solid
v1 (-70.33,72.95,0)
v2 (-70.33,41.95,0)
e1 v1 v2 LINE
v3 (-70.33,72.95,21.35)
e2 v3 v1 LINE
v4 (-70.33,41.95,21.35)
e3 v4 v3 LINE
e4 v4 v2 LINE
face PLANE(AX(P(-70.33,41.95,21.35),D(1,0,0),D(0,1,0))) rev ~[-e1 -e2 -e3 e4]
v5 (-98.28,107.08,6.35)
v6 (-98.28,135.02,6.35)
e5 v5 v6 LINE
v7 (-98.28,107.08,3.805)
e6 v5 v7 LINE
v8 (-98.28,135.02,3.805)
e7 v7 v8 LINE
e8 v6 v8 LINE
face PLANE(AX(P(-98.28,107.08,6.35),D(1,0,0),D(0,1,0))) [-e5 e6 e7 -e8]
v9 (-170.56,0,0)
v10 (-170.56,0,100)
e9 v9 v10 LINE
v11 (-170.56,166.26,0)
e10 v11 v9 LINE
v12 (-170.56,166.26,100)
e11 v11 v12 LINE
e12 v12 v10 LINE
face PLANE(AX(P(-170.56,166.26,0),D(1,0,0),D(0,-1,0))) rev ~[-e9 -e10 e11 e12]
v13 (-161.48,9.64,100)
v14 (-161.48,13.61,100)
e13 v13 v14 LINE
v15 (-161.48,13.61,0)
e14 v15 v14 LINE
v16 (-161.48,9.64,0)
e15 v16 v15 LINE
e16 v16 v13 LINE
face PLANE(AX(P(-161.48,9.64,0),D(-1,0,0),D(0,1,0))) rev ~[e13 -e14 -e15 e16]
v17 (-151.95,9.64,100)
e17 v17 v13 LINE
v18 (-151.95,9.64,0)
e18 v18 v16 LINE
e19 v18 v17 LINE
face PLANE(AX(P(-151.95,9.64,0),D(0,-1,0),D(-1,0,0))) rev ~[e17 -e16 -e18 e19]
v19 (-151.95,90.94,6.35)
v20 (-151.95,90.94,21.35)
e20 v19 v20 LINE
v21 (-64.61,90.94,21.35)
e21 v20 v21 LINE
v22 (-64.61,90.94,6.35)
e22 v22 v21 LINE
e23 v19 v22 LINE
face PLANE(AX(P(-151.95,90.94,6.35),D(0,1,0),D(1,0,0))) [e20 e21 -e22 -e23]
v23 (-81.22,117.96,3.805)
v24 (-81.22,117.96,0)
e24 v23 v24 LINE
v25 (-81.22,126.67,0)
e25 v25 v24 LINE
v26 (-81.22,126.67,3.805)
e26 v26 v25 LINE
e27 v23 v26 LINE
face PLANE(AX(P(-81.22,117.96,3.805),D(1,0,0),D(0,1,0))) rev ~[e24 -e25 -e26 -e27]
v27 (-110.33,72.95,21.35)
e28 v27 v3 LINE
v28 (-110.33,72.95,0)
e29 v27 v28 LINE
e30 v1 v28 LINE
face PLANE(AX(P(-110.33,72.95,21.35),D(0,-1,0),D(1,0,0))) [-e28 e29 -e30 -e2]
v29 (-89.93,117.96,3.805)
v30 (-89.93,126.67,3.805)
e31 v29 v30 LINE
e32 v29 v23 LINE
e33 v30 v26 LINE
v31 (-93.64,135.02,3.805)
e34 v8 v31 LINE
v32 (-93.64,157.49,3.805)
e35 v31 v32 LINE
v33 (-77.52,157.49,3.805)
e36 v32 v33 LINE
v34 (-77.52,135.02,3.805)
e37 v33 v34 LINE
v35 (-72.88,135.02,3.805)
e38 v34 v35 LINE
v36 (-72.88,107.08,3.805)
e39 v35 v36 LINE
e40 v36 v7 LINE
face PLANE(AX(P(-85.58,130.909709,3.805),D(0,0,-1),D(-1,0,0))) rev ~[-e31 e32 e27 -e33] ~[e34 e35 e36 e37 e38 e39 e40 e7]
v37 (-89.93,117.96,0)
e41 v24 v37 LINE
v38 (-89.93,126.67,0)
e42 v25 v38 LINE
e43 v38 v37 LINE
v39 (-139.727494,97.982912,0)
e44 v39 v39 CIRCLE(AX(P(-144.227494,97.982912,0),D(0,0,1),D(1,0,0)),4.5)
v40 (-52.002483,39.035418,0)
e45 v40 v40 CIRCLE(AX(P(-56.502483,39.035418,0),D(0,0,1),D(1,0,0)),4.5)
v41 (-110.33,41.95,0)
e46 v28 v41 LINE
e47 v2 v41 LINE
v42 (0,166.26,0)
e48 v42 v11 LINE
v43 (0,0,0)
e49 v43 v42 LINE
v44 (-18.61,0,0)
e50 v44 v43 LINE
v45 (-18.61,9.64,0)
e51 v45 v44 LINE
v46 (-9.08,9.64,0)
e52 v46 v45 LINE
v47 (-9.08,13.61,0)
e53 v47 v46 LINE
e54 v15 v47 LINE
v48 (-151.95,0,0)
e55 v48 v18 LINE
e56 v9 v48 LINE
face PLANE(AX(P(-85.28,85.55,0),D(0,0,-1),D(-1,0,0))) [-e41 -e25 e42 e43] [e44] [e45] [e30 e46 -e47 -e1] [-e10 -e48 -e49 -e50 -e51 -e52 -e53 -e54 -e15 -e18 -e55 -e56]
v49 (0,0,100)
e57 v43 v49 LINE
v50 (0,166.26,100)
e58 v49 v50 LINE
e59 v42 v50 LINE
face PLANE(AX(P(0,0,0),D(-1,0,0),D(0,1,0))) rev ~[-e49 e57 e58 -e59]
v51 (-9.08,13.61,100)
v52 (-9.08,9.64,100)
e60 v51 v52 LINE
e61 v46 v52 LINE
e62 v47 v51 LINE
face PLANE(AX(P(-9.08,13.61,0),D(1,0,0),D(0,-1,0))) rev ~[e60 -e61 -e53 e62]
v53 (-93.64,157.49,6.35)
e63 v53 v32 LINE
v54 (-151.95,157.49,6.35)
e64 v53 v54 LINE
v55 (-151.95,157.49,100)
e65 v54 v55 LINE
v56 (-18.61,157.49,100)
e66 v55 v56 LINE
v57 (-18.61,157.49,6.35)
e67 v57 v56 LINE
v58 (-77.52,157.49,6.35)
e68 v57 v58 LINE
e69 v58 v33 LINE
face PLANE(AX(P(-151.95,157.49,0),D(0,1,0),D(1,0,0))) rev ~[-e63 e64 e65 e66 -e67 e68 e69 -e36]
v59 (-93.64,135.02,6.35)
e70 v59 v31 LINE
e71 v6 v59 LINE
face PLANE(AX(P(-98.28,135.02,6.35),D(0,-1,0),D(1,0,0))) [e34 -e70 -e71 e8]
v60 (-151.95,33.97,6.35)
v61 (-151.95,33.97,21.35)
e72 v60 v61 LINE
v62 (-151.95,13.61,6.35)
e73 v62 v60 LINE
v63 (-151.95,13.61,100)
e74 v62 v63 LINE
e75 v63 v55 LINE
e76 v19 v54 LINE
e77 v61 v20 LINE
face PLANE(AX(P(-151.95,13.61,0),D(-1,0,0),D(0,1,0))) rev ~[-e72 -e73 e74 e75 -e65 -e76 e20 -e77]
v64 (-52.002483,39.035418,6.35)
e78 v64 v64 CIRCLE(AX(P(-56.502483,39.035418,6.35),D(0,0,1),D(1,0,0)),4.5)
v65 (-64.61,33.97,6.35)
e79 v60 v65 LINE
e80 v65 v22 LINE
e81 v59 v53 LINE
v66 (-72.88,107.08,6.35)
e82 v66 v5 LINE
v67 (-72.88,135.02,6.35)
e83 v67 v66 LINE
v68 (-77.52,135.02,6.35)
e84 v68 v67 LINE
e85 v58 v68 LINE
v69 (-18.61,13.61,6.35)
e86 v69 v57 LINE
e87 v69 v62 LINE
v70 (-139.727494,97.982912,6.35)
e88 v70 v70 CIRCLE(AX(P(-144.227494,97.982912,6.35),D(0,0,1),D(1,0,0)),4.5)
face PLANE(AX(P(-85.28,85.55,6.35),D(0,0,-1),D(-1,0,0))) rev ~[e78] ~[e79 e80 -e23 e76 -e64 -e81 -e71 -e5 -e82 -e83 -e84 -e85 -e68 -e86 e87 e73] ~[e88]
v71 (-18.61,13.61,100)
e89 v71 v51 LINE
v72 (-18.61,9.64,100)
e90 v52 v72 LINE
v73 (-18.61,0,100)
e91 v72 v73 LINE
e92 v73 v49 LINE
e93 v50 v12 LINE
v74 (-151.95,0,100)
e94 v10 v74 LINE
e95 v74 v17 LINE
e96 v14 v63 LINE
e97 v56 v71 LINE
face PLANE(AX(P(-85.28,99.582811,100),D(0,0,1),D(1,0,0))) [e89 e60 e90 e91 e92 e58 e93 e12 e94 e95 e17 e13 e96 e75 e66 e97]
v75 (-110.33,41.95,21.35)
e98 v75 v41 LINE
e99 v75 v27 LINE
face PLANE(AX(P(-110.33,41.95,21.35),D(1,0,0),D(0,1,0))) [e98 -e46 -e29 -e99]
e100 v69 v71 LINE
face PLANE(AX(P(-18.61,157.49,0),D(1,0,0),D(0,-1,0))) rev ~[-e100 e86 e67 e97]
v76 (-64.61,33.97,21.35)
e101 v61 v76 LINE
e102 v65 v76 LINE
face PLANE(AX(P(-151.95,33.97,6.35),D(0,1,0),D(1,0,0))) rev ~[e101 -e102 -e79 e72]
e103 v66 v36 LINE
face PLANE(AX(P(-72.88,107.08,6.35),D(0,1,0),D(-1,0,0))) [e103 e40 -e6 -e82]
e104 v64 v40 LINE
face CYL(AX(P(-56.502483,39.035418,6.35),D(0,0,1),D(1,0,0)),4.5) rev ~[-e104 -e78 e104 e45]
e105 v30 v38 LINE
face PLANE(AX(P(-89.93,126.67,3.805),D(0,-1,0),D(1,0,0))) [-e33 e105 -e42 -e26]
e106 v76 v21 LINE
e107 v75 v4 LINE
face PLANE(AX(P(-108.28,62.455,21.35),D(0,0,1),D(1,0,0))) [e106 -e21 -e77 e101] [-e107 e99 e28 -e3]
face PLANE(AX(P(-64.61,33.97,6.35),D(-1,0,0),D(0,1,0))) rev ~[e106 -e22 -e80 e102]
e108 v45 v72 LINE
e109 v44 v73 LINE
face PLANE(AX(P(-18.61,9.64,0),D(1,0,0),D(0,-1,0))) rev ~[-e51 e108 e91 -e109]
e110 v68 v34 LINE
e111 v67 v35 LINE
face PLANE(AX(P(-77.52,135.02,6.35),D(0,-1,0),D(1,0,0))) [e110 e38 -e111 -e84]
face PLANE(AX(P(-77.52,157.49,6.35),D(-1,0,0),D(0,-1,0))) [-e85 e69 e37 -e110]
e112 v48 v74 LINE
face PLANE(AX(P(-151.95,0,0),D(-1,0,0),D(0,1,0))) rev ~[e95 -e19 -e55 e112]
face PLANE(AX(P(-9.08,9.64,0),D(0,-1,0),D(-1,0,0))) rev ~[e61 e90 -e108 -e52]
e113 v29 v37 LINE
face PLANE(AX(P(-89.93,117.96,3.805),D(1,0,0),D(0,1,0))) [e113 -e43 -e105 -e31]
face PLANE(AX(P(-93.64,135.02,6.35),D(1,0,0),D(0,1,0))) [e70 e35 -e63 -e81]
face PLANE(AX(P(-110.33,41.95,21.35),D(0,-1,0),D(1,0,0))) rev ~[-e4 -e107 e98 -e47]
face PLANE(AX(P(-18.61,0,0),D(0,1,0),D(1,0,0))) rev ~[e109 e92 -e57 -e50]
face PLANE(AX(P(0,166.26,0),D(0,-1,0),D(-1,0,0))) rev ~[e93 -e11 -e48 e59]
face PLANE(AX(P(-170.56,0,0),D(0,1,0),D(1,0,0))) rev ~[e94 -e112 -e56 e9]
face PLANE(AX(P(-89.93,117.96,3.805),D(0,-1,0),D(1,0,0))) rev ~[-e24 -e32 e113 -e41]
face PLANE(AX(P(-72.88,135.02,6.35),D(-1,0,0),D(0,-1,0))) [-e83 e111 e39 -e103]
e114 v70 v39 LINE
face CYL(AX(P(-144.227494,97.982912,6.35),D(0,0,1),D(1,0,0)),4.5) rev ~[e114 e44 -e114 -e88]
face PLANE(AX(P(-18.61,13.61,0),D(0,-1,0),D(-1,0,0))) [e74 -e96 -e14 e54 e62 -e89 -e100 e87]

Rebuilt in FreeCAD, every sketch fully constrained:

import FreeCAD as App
import Part
import Sketcher
from FreeCAD import Vector

doc = App.newDocument("Part")
body = doc.addObject("PartDesign::Body", "Body")

# Sketch on XY plane
sketch1 = doc.addObject("Sketcher::SketchObject", "Sketch")
body.addObject(sketch1)
sketch1.AttachmentSupport = (doc.XY_Plane, [""])
sketch1.MapMode = "FlatFace"
sketch1.addGeometry(Part.LineSegment(Vector(0, 0, 0), Vector(0, 166.3, 0)), False)
sketch1.addGeometry(Part.LineSegment(Vector(0, 166.3, 0), Vector(-170.6, 166.3, 0)), False)
sketch1.addGeometry(Part.LineSegment(Vector(-170.6, 166.3, 0), Vector(-170.6, 0, 0)), False)
sketch1.addGeometry(Part.LineSegment(Vector(-170.6, 0, 0), Vector(-151.9, 0, 0)), False)
sketch1.addGeometry(Part.LineSegment(Vector(-151.9, 0, 0), Vector(-151.9, 9.6, 0)), False)
sketch1.addGeometry(Part.LineSegment(Vector(-151.9, 9.6, 0), Vector(-161.5, 9.6, 0)), False)
sketch1.addGeometry(Part.LineSegment(Vector(-161.5, 9.6, 0), Vector(-161.5, 13.6, 0)), False)
sketch1.addGeometry(Part.LineSegment(Vector(-161.5, 13.6, 0), Vector(-151.9, 13.6, 0)), False)
sketch1.addGeometry(Part.LineSegment(Vector(-151.9, 13.6, 0), Vector(-151.9, 157.5, 0)), False)
sketch1.addGeometry(Part.LineSegment(Vector(-151.9, 157.5, 0), Vector(-18.6, 157.5, 0)), False)
sketch1.addGeometry(Part.LineSegment(Vector(-18.6, 157.5, 0), Vector(-18.6, 13.6, 0)), False)
sketch1.addGeometry(Part.LineSegment(Vector(-18.6, 13.6, 0), Vector(-9.1, 13.6, 0)), False)
sketch1.addGeometry(Part.LineSegment(Vector(-9.1, 13.6, 0), Vector(-9.1, 9.6, 0)), False)
sketch1.addGeometry(Part.LineSegment(Vector(-9.1, 9.6, 0), Vector(-18.6, 9.6, 0)), False)
sketch1.addGeometry(Part.LineSegment(Vector(-18.6, 9.6, 0), Vector(-18.6, 0, 0)), False)
sketch1.addGeometry(Part.LineSegment(Vector(-18.6, 0, 0), Vector(0, 0, 0)), False)
sketch1.addConstraint(Sketcher.Constraint("Coincident", 0, 2, 1, 1))
sketch1.addConstraint(Sketcher.Constraint("Coincident", 1, 2, 2, 1))
sketch1.addConstraint(Sketcher.Constraint("Coincident", 2, 2, 3, 1))
sketch1.addConstraint(Sketcher.Constraint("Coincident", 3, 2, 4, 1))
sketch1.addConstraint(Sketcher.Constraint("Coincident", 4, 2, 5, 1))
sketch1.addConstraint(Sketcher.Constraint("Coincident", 5, 2, 6, 1))
sketch1.addConstraint(Sketcher.Constraint("Coincident", 6, 2, 7, 1))
sketch1.addConstraint(Sketcher.Constraint("Coincident", 7, 2, 8, 1))
sketch1.addConstraint(Sketcher.Constraint("Coincident", 8, 2, 9, 1))
sketch1.addConstraint(Sketcher.Constraint("Coincident", 9, 2, 10, 1))
sketch1.addConstraint(Sketcher.Constraint("Coincident", 10, 2, 11, 1))
sketch1.addConstraint(Sketcher.Constraint("Coincident", 11, 2, 12, 1))
sketch1.addConstraint(Sketcher.Constraint("Coincident", 12, 2, 13, 1))
sketch1.addConstraint(Sketcher.Constraint("Coincident", 13, 2, 14, 1))
sketch1.addConstraint(Sketcher.Constraint("Coincident", 14, 2, 15, 1))
sketch1.addConstraint(Sketcher.Constraint("Coincident", 15, 2, 0, 1))
sketch1.addConstraint(Sketcher.Constraint("Vertical", 0))
sketch1.addConstraint(Sketcher.Constraint("Horizontal", 1))
sketch1.addConstraint(Sketcher.Constraint("Vertical", 2))
sketch1.addConstraint(Sketcher.Constraint("Horizontal", 3))
sketch1.addConstraint(Sketcher.Constraint("Vertical", 4))
sketch1.addConstraint(Sketcher.Constraint("Horizontal", 5))
sketch1.addConstraint(Sketcher.Constraint("Vertical", 6))
sketch1.addConstraint(Sketcher.Constraint("Horizontal", 7))
sketch1.addConstraint(Sketcher.Constraint("Vertical", 8))
sketch1.addConstraint(Sketcher.Constraint("Horizontal", 9))
sketch1.addConstraint(Sketcher.Constraint("Vertical", 10))
sketch1.addConstraint(Sketcher.Constraint("Horizontal", 11))
sketch1.addConstraint(Sketcher.Constraint("Vertical", 12))
sketch1.addConstraint(Sketcher.Constraint("Horizontal", 13))
sketch1.addConstraint(Sketcher.Constraint("Vertical", 14))
sketch1.addConstraint(Sketcher.Constraint("Horizontal", 15))
sketch1.addConstraint(Sketcher.Constraint("Coincident", 15, 2, -1, 1))
sketch1.addConstraint(Sketcher.Constraint("PointOnObject", 2, 2, -1))
sketch1.addConstraint(Sketcher.Constraint("Horizontal", 7, 2, 10, 2))
sketch1.addConstraint(Sketcher.Constraint("Horizontal", 5, 2, 12, 2))
sketch1.addConstraint(Sketcher.Constraint("Vertical", 4, 2, 7, 2))
sketch1.addConstraint(Sketcher.Constraint("Vertical", 10, 2, 13, 2))
sketch1.addConstraint(Sketcher.Constraint("Equal", 7, 11))
sketch1.addConstraint(Sketcher.Constraint("Equal", 3, 15))
sketch1.addConstraint(Sketcher.Constraint("DistanceX", 1, 2, 1, 1, 170.56))
sketch1.addConstraint(Sketcher.Constraint("DistanceX", 3, 1, 3, 2, 18.61))
sketch1.addConstraint(Sketcher.Constraint("DistanceX", 5, 2, 5, 1, 9.53))
sketch1.addConstraint(Sketcher.Constraint("DistanceY", 0, 1, 0, 2, 166.26))
sketch1.addConstraint(Sketcher.Constraint("DistanceY", 4, 1, 4, 2, 9.64))
sketch1.addConstraint(Sketcher.Constraint("DistanceY", 6, 1, 6, 2, 3.97))
sketch1.addConstraint(Sketcher.Constraint("DistanceY", 8, 1, 8, 2, 143.88))
pad1 = doc.addObject("PartDesign::Pad", "Pad")
body.addObject(pad1)
pad1.Profile = sketch1
pad1.Length = 100

# Sketch on XY plane
sketch2 = doc.addObject("Sketcher::SketchObject", "Sketch001")
body.addObject(sketch2)
sketch2.AttachmentSupport = (doc.XY_Plane, [""])
sketch2.MapMode = "FlatFace"
sketch2.addGeometry(Part.LineSegment(Vector(-19, 157, 0), Vector(-19, 14, 0)), False)
sketch2.addGeometry(Part.LineSegment(Vector(-19, 14, 0), Vector(-152, 14, 0)), False)
sketch2.addGeometry(Part.LineSegment(Vector(-152, 14, 0), Vector(-152, 157, 0)), False)
sketch2.addGeometry(Part.LineSegment(Vector(-152, 157, 0), Vector(-19, 157, 0)), False)
sketch2.addConstraint(Sketcher.Constraint("Coincident", 0, 2, 1, 1))
sketch2.addConstraint(Sketcher.Constraint("Coincident", 1, 2, 2, 1))
sketch2.addConstraint(Sketcher.Constraint("Coincident", 2, 2, 3, 1))
sketch2.addConstraint(Sketcher.Constraint("Coincident", 3, 2, 0, 1))
sketch2.addConstraint(Sketcher.Constraint("Vertical", 0))
sketch2.addConstraint(Sketcher.Constraint("Horizontal", 1))
sketch2.addConstraint(Sketcher.Constraint("Vertical", 2))
sketch2.addConstraint(Sketcher.Constraint("Horizontal", 3))
sketch2.addConstraint(Sketcher.Constraint("DistanceX", 1, 2, 1, 1, 133.34))
sketch2.addConstraint(Sketcher.Constraint("DistanceY", 0, 2, 0, 1, 143.88))
sketch2.addConstraint(Sketcher.Constraint("DistanceX", 0, 2, -1, 1, 18.61))
sketch2.addConstraint(Sketcher.Constraint("DistanceY", -1, 1, 0, 2, 13.61))
pad2 = doc.addObject("PartDesign::Pad", "Pad001")
body.addObject(pad2)
pad2.Profile = sketch2
pad2.Length = 6.35

# Sketch on XY plane
sketch3 = doc.addObject("Sketcher::SketchObject", "Sketch002")
body.addObject(sketch3)
sketch3.AttachmentSupport = (doc.XY_Plane, [""])
sketch3.MapMode = "FlatFace"
sketch3.AttachmentOffset = App.Placement(Vector(0, 0, 6.35), App.Rotation())
sketch3.addGeometry(Part.LineSegment(Vector(-152, 91, 0), Vector(-152, 34, 0)), False)
sketch3.addGeometry(Part.LineSegment(Vector(-152, 34, 0), Vector(-65, 34, 0)), False)
sketch3.addGeometry(Part.LineSegment(Vector(-65, 34, 0), Vector(-65, 91, 0)), False)
sketch3.addGeometry(Part.LineSegment(Vector(-65, 91, 0), Vector(-152, 91, 0)), False)
sketch3.addConstraint(Sketcher.Constraint("Coincident", 0, 2, 1, 1))
sketch3.addConstraint(Sketcher.Constraint("Coincident", 1, 2, 2, 1))
sketch3.addConstraint(Sketcher.Constraint("Coincident", 2, 2, 3, 1))
sketch3.addConstraint(Sketcher.Constraint("Coincident", 3, 2, 0, 1))
sketch3.addConstraint(Sketcher.Constraint("Vertical", 0))
sketch3.addConstraint(Sketcher.Constraint("Horizontal", 1))
sketch3.addConstraint(Sketcher.Constraint("Vertical", 2))
sketch3.addConstraint(Sketcher.Constraint("Horizontal", 3))
sketch3.addConstraint(Sketcher.Constraint("DistanceX", 1, 1, 1, 2, 87.34))
sketch3.addConstraint(Sketcher.Constraint("DistanceY", 0, 2, 0, 1, 56.97))
sketch3.addConstraint(Sketcher.Constraint("DistanceX", 0, 2, -1, 1, 151.95))
sketch3.addConstraint(Sketcher.Constraint("DistanceY", -1, 1, 0, 2, 33.97))
pad3 = doc.addObject("PartDesign::Pad", "Pad002")
body.addObject(pad3)
pad3.Profile = sketch3
pad3.Length = 15

# Sketch on XY plane
sketch4 = doc.addObject("Sketcher::SketchObject", "Sketch003")
body.addObject(sketch4)
sketch4.AttachmentSupport = (doc.XY_Plane, [""])
sketch4.MapMode = "FlatFace"
sketch4.AttachmentOffset = App.Placement(Vector(0, 0, 6.35), App.Rotation())
sketch4.addGeometry(Part.Circle(Vector(-56.5, 39, 0), Vector(0, 0, 1), 4.5), False)
sketch4.addGeometry(Part.Circle(Vector(-144.2, 98, 0), Vector(0, 0, 1), 4.5), False)
sketch4.addConstraint(Sketcher.Constraint("Equal", 0, 1))
sketch4.addConstraint(Sketcher.Constraint("Diameter", 0, 9.0))
sketch4.addConstraint(Sketcher.Constraint("DistanceY", -1, 1, 0, 3, 39.035418))
sketch4.addConstraint(Sketcher.Constraint("DistanceY", -1, 1, 1, 3, 97.982912))
sketch4.addConstraint(Sketcher.Constraint("DistanceX", 1, 3, 0, 3, 87.72501))
sketch4.addConstraint(Sketcher.Constraint("DistanceX", 0, 3, -1, 1, 56.502483))
pocket1 = doc.addObject("PartDesign::Pocket", "Pocket")
body.addObject(pocket1)
pocket1.Profile = sketch4
pocket1.Type = "ThroughAll"

# Sketch on XY plane
sketch5 = doc.addObject("Sketcher::SketchObject", "Sketch004")
body.addObject(sketch5)
sketch5.AttachmentSupport = (doc.XY_Plane, [""])
sketch5.MapMode = "FlatFace"
sketch5.AttachmentOffset = App.Placement(Vector(0, 0, 21.35), App.Rotation())
sketch5.addGeometry(Part.LineSegment(Vector(-110, 73, 0), Vector(-110, 42, 0)), False)
sketch5.addGeometry(Part.LineSegment(Vector(-110, 42, 0), Vector(-70, 42, 0)), False)
sketch5.addGeometry(Part.LineSegment(Vector(-70, 42, 0), Vector(-70, 73, 0)), False)
sketch5.addGeometry(Part.LineSegment(Vector(-70, 73, 0), Vector(-110, 73, 0)), False)
sketch5.addConstraint(Sketcher.Constraint("Coincident", 0, 2, 1, 1))
sketch5.addConstraint(Sketcher.Constraint("Coincident", 1, 2, 2, 1))
sketch5.addConstraint(Sketcher.Constraint("Coincident", 2, 2, 3, 1))
sketch5.addConstraint(Sketcher.Constraint("Coincident", 3, 2, 0, 1))
sketch5.addConstraint(Sketcher.Constraint("Vertical", 0))
sketch5.addConstraint(Sketcher.Constraint("Horizontal", 1))
sketch5.addConstraint(Sketcher.Constraint("Vertical", 2))
sketch5.addConstraint(Sketcher.Constraint("Horizontal", 3))
sketch5.addConstraint(Sketcher.Constraint("DistanceX", 1, 1, 1, 2, 40.0))
sketch5.addConstraint(Sketcher.Constraint("DistanceY", 0, 2, 0, 1, 31.0))
sketch5.addConstraint(Sketcher.Constraint("DistanceX", 0, 2, -1, 1, 110.33))
sketch5.addConstraint(Sketcher.Constraint("DistanceY", -1, 1, 0, 2, 41.95))
pocket2 = doc.addObject("PartDesign::Pocket", "Pocket001")
body.addObject(pocket2)
pocket2.Profile = sketch5
pocket2.Type = "ThroughAll"

# Sketch on XY plane
sketch6 = doc.addObject("Sketcher::SketchObject", "Sketch005")
body.addObject(sketch6)
sketch6.AttachmentSupport = (doc.XY_Plane, [""])
sketch6.MapMode = "FlatFace"
sketch6.AttachmentOffset = App.Placement(Vector(0, 0, 6.35), App.Rotation())
sketch6.addGeometry(Part.LineSegment(Vector(-77.5, 135, 0), Vector(-77.5, 157.5, 0)), False)
sketch6.addGeometry(Part.LineSegment(Vector(-77.5, 157.5, 0), Vector(-93.6, 157.5, 0)), False)
sketch6.addGeometry(Part.LineSegment(Vector(-93.6, 157.5, 0), Vector(-93.6, 135, 0)), False)
sketch6.addGeometry(Part.LineSegment(Vector(-93.6, 135, 0), Vector(-98.3, 135, 0)), False)
sketch6.addGeometry(Part.LineSegment(Vector(-98.3, 135, 0), Vector(-98.3, 107.1, 0)), False)
sketch6.addGeometry(Part.LineSegment(Vector(-98.3, 107.1, 0), Vector(-72.9, 107.1, 0)), False)
sketch6.addGeometry(Part.LineSegment(Vector(-72.9, 107.1, 0), Vector(-72.9, 135, 0)), False)
sketch6.addGeometry(Part.LineSegment(Vector(-72.9, 135, 0), Vector(-77.5, 135, 0)), False)
sketch6.addConstraint(Sketcher.Constraint("Coincident", 0, 2, 1, 1))
sketch6.addConstraint(Sketcher.Constraint("Coincident", 1, 2, 2, 1))
sketch6.addConstraint(Sketcher.Constraint("Coincident", 2, 2, 3, 1))
sketch6.addConstraint(Sketcher.Constraint("Coincident", 3, 2, 4, 1))
sketch6.addConstraint(Sketcher.Constraint("Coincident", 4, 2, 5, 1))
sketch6.addConstraint(Sketcher.Constraint("Coincident", 5, 2, 6, 1))
sketch6.addConstraint(Sketcher.Constraint("Coincident", 6, 2, 7, 1))
sketch6.addConstraint(Sketcher.Constraint("Coincident", 7, 2, 0, 1))
sketch6.addConstraint(Sketcher.Constraint("Vertical", 0))
sketch6.addConstraint(Sketcher.Constraint("Horizontal", 1))
sketch6.addConstraint(Sketcher.Constraint("Vertical", 2))
sketch6.addConstraint(Sketcher.Constraint("Horizontal", 3))
sketch6.addConstraint(Sketcher.Constraint("Vertical", 4))
sketch6.addConstraint(Sketcher.Constraint("Horizontal", 5))
sketch6.addConstraint(Sketcher.Constraint("Vertical", 6))
sketch6.addConstraint(Sketcher.Constraint("Horizontal", 7))
sketch6.addConstraint(Sketcher.Constraint("Horizontal", 3, 2, 6, 2))
sketch6.addConstraint(Sketcher.Constraint("Equal", 3, 7))
sketch6.addConstraint(Sketcher.Constraint("DistanceX", 5, 1, 5, 2, 25.4))
sketch6.addConstraint(Sketcher.Constraint("DistanceX", 1, 2, 1, 1, 16.12))
sketch6.addConstraint(Sketcher.Constraint("DistanceY", 0, 1, 0, 2, 22.47))
sketch6.addConstraint(Sketcher.Constraint("DistanceY", 4, 2, 4, 1, 27.94))
sketch6.addConstraint(Sketcher.Constraint("DistanceX", 0, 2, -1, 1, 77.52))
sketch6.addConstraint(Sketcher.Constraint("DistanceY", -1, 1, 0, 2, 157.49))
pocket3 = doc.addObject("PartDesign::Pocket", "Pocket002")
body.addObject(pocket3)
pocket3.Profile = sketch6
pocket3.Length = 2.545

# Sketch on XY plane
sketch7 = doc.addObject("Sketcher::SketchObject", "Sketch006")
body.addObject(sketch7)
sketch7.AttachmentSupport = (doc.XY_Plane, [""])
sketch7.MapMode = "FlatFace"
sketch7.AttachmentOffset = App.Placement(Vector(0, 0, 3.805), App.Rotation())
sketch7.addGeometry(Part.LineSegment(Vector(-90, 127, 0), Vector(-90, 118, 0)), False)
sketch7.addGeometry(Part.LineSegment(Vector(-90, 118, 0), Vector(-81, 118, 0)), False)
sketch7.addGeometry(Part.LineSegment(Vector(-81, 118, 0), Vector(-81, 127, 0)), False)
sketch7.addGeometry(Part.LineSegment(Vector(-81, 127, 0), Vector(-90, 127, 0)), False)
sketch7.addConstraint(Sketcher.Constraint("Coincident", 0, 2, 1, 1))
sketch7.addConstraint(Sketcher.Constraint("Coincident", 1, 2, 2, 1))
sketch7.addConstraint(Sketcher.Constraint("Coincident", 2, 2, 3, 1))
sketch7.addConstraint(Sketcher.Constraint("Coincident", 3, 2, 0, 1))
sketch7.addConstraint(Sketcher.Constraint("Vertical", 0))
sketch7.addConstraint(Sketcher.Constraint("Horizontal", 1))
sketch7.addConstraint(Sketcher.Constraint("Vertical", 2))
sketch7.addConstraint(Sketcher.Constraint("Horizontal", 3))
sketch7.addConstraint(Sketcher.Constraint("Equal", 3, 0))
sketch7.addConstraint(Sketcher.Constraint("DistanceX", 1, 1, 1, 2, 8.71))
sketch7.addConstraint(Sketcher.Constraint("DistanceX", 0, 2, -1, 1, 89.93))
sketch7.addConstraint(Sketcher.Constraint("DistanceY", -1, 1, 0, 2, 117.96))
pocket4 = doc.addObject("PartDesign::Pocket", "Pocket003")
body.addObject(pocket4)
pocket4.Profile = sketch7
pocket4.Type = "ThroughAll"

doc.recompute()
